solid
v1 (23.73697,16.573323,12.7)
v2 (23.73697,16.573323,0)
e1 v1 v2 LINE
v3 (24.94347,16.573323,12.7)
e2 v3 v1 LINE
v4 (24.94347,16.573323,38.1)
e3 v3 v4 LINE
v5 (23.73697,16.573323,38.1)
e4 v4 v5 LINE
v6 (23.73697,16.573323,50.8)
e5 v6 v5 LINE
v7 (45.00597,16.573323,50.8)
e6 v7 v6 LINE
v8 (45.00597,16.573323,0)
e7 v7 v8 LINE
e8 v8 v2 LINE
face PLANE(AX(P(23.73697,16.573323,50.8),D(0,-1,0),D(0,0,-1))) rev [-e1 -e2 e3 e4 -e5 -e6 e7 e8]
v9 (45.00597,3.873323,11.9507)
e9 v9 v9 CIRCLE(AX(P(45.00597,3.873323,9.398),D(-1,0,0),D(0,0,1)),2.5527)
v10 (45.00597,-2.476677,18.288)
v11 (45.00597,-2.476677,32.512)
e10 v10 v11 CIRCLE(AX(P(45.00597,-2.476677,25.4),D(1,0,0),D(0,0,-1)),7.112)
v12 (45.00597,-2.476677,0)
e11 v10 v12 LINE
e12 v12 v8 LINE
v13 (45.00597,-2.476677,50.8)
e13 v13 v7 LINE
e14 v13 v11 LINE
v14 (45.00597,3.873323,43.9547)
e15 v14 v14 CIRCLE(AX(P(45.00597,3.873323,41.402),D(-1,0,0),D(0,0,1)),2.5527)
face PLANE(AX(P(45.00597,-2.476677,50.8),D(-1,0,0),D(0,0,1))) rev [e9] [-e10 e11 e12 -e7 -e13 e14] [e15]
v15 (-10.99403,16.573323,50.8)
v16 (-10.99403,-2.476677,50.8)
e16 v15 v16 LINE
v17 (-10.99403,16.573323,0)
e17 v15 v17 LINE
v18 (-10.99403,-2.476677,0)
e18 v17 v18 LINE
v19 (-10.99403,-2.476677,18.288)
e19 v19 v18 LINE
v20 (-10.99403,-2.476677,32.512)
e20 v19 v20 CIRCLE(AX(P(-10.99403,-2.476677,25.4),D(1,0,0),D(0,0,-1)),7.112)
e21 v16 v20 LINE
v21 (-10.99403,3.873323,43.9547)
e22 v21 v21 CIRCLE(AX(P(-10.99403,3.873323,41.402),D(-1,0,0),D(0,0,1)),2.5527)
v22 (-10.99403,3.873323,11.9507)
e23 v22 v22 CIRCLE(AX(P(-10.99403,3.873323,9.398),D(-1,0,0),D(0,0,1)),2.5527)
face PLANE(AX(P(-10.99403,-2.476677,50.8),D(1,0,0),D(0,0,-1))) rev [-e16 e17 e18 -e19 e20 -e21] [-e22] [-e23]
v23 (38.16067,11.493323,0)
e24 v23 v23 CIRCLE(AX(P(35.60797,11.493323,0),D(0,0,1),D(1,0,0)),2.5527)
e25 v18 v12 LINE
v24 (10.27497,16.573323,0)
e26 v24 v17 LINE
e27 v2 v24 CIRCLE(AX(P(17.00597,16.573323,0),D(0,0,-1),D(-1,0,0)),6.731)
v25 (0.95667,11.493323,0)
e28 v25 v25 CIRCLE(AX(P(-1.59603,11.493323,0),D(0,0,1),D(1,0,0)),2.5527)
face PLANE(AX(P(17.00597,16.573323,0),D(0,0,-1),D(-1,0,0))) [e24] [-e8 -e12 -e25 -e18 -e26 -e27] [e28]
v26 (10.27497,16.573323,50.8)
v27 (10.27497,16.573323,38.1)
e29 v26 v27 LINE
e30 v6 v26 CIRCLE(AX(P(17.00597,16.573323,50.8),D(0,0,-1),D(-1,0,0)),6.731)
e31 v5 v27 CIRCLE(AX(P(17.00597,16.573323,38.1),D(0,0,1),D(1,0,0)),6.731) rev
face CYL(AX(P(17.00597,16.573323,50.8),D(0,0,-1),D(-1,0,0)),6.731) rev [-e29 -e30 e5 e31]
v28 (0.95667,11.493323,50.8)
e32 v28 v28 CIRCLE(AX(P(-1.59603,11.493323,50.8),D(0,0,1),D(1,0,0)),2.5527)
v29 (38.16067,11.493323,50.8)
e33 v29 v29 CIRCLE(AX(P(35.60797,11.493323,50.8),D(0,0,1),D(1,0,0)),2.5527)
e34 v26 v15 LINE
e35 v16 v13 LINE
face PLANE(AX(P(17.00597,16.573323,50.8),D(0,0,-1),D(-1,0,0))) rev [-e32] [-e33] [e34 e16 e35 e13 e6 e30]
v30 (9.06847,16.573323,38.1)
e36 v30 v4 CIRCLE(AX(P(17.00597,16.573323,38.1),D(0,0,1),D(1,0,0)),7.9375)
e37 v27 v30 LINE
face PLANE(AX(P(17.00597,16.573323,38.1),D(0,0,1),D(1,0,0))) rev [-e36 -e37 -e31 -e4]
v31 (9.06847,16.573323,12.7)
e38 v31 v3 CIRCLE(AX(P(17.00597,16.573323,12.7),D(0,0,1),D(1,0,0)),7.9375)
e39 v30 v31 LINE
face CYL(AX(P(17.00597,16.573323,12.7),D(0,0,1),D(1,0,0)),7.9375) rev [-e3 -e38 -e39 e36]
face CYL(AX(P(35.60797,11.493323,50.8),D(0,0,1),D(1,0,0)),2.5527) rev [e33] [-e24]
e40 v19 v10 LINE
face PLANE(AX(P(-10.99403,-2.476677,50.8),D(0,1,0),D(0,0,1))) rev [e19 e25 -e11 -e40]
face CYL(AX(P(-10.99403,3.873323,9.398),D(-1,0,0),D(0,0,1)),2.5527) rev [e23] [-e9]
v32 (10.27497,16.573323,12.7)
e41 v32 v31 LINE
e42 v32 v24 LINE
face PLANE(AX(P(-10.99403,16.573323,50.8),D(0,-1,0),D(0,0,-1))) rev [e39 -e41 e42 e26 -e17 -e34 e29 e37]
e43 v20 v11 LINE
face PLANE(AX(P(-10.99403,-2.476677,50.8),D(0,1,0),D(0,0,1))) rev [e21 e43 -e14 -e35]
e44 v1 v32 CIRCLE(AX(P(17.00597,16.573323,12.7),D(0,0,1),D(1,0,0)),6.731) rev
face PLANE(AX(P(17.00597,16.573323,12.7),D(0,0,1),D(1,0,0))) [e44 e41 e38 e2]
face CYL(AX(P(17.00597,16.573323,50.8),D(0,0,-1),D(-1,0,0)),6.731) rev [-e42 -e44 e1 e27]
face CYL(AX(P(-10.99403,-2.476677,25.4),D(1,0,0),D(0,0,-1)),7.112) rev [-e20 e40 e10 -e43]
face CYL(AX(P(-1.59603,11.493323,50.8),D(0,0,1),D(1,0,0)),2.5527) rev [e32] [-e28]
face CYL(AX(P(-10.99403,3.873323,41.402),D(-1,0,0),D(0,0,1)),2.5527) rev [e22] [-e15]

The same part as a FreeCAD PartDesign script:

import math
import FreeCAD as App
import Part
import Sketcher

V = App.Vector
Q = App.Units.Quantity

doc = App.newDocument("Part")
params = doc.addObject("Spreadsheet::Sheet", "Params")
for row, (alias, value) in enumerate([
    ("sketch1_radius", "0.265 in"),
    ("sketch1_height", "0.75 in"),
    ("pad1_length", "2 in"),
    ("sketch2_diameter", "0.625 in"),
    ("pocket1_length", "1 in"),
    ("sketch3_diameter", "0.201 in"),
    ("hole_diameter", "0.201 in"),
    ("sketch4_diameter", "0.201 in"),
    ("hole2_diameter", "0.201 in"),
    ("sketch5_radius", "0.28 in"),
], start=1):
    params.set(f"A{row}", alias)
    params.set(f"B{row}", "=" + value)
    params.setAlias(f"B{row}", alias)

body = doc.addObject("PartDesign::Body", "Body")

sketch1 = body.newObject("Sketcher::SketchObject", "Sketch")
sketch1.AttachmentSupport = (doc.getObject("XY_Plane"), [""])
sketch1.MapMode = "FlatFace"
sketch1.addGeometry([
    Part.LineSegment(V(45, 17, 0), V(24, 17, 0)),
    Part.ArcOfCircle(Part.Circle(V(17, 17, 0), V(0, 0, 1), 7), math.radians(180), math.radians(360)),
    Part.LineSegment(V(10, 17, 0), V(-11, 17, 0)),
    Part.LineSegment(V(-11, 17, 0), V(-11, -2, 0)),
    Part.LineSegment(V(-11, -2, 0), V(45, -2, 0)),
    Part.LineSegment(V(45, -2, 0), V(45, 17, 0)),
], False)
sketch1.addConstraint([
    Sketcher.Constraint("Coincident", 0, 2, 1, 2),
    Sketcher.Constraint("Coincident", 1, 1, 2, 1),
    Sketcher.Constraint("Coincident", 2, 2, 3, 1),
    Sketcher.Constraint("Coincident", 3, 2, 4, 1),
    Sketcher.Constraint("Coincident", 4, 2, 5, 1),
    Sketcher.Constraint("Coincident", 5, 2, 0, 1),
    Sketcher.Constraint("Horizontal", 0),
    Sketcher.Constraint("Horizontal", 2),
    Sketcher.Constraint("Vertical", 3),
    Sketcher.Constraint("Horizontal", 4),
    Sketcher.Constraint("Vertical", 5),
    Sketcher.Constraint("Horizontal", 1, 3, 0, 2),
    Sketcher.Constraint("Horizontal", 0, 2, 1, 1),
    Sketcher.Constraint("Equal", 0, 2),
    Sketcher.Constraint("Radius", 1, Q("0.265 in")),
    Sketcher.Constraint("DistanceY", 3, 2, 3, 1, Q("0.75 in")),
    Sketcher.Constraint("DistanceX", 0, 2, 0, 1, Q("21.269 mm")),
    Sketcher.Constraint("DistanceX", -1, 1, 1, 3, Q("17.00597 mm")),
    Sketcher.Constraint("DistanceY", -1, 1, 1, 3, Q("16.573323 mm")),
])
sketch1.setExpression("Constraints[14]", "Params.sketch1_radius")
sketch1.setExpression("Constraints[15]", "Params.sketch1_height")
pad1 = body.newObject("PartDesign::Pad", "Pad")
pad1.Profile = sketch1
pad1.setExpression("Length", "Params.pad1_length")

sketch2 = body.newObject("Sketcher::SketchObject", "Sketch001")
sketch2.AttachmentSupport = (doc.getObject("XY_Plane"), [""])
sketch2.MapMode = "FlatFace"
sketch2.AttachmentOffset = App.Placement(V(0, 0, 1 * 25.4), App.Rotation())
sketch2.addGeometry(Part.Circle(V(17, 17, 0), V(0, 0, 1), 8), False)
sketch2.addConstraint([
    Sketcher.Constraint("Diameter", 0, Q("0.625 in")),
    Sketcher.Constraint("DistanceX", -1, 1, 0, 3, Q("17.00597 mm")),
    Sketcher.Constraint("DistanceY", -1, 1, 0, 3, Q("16.573323 mm")),
])
sketch2.setExpression("Constraints[0]", "Params.sketch2_diameter")
pocket1 = body.newObject("PartDesign::Pocket", "Pocket")
pocket1.Profile = sketch2
pocket1.setExpression("Length", "Params.pocket1_length")
pocket1.Midplane = True

sketch3 = body.newObject("Sketcher::SketchObject", "Sketch002")
sketch3.AttachmentSupport = (doc.getObject("YZ_Plane"), [""])
sketch3.MapMode = "FlatFace"
sketch3.AttachmentOffset = App.Placement(V(0, 0, -10.99403), App.Rotation())
sketch3.addGeometry([
    Part.Circle(V(3.9, 41.4, 0), V(0, 0, 1), 2.6),
    Part.Circle(V(3.9, 9.4, 0), V(0, 0, 1), 2.6),
], False)
sketch3.addConstraint([
    Sketcher.Constraint("Equal", 0, 1),
    Sketcher.Constraint("Vertical", 0, 3, 1, 3),
    Sketcher.Constraint("Diameter", 0, Q("0.201 in")),
    Sketcher.Constraint("DistanceY", -1, 1, 0, 3, Q("1.63 in")),
    Sketcher.Constraint("DistanceY", -1, 1, 1, 3, Q("0.37 in")),
    Sketcher.Constraint("DistanceX", -1, 1, 0, 3, Q("3.873323 mm")),
])
sketch3.setExpression("Constraints[2]", "Params.sketch3_diameter")
doc.recompute()
hole = body.newObject("PartDesign::Hole", "Hole")
hole.Profile = sketch3
hole.ThreadType = "None"
hole.setExpression("Diameter", "Params.hole_diameter")
hole.DepthType = "ThroughAll"
hole.Reversed = True

sketch4 = body.newObject("Sketcher::SketchObject", "Sketch003")
sketch4.AttachmentSupport = (doc.getObject("XY_Plane"), [""])
sketch4.MapMode = "FlatFace"
sketch4.AttachmentOffset = App.Placement(V(0, 0, 2 * 25.4), App.Rotation())
sketch4.addGeometry([
    Part.Circle(V(-1.6, 11.5, 0), V(0, 0, 1), 2.6),
    Part.Circle(V(35.6, 11.5, 0), V(0, 0, 1), 2.6),
], False)
sketch4.addConstraint([
    Sketcher.Constraint("Equal", 0, 1),
    Sketcher.Constraint("Horizontal", 0, 3, 1, 3),
    Sketcher.Constraint("Diameter", 0, Q("0.201 in")),
    Sketcher.Constraint("DistanceX", 0, 3, 1, 3, Q("37.204 mm")),
    Sketcher.Constraint("DistanceX", 0, 3, -1, 1, Q("1.59603 mm")),
    Sketcher.Constraint("DistanceY", -1, 1, 0, 3, Q("11.493323 mm")),
])
sketch4.setExpression("Constraints[2]", "Params.sketch4_diameter")
doc.recompute()
hole2 = body.newObject("PartDesign::Hole", "Hole001")
hole2.Profile = sketch4
hole2.ThreadType = "None"
hole2.setExpression("Diameter", "Params.hole2_diameter")
hole2.DepthType = "ThroughAll"

sketch5 = body.newObject("Sketcher::SketchObject", "Sketch004")
sketch5.AttachmentSupport = (doc.getObject("YZ_Plane"), [""])
sketch5.MapMode = "FlatFace"
sketch5.AttachmentOffset = App.Placement(V(0, 0, 45.00597), App.Rotation())
sketch5.addGeometry([
    Part.LineSegment(V(-2, 33, 0), V(-2, 18, 0)),
    Part.ArcOfCircle(Part.Circle(V(-2, 25, 0), V(0, 0, 1), 7), math.radians(-90), math.radians(90)),
], False)
sketch5.addConstraint([
    Sketcher.Constraint("Coincident", 0, 1, 1, 2),
    Sketcher.Constraint("Coincident", 1, 1, 0, 2),
    Sketcher.Constraint("Vertical", 0),
    Sketcher.Constraint("Vertical", 1, 3, 0, 1),
    Sketcher.Constraint("Radius", 1, Q("0.28 in")),
    Sketcher.Constraint("DistanceY", -1, 1, 1, 3, Q("1 in")),
    Sketcher.Constraint("DistanceX", 1, 3, -1, 1, Q("2.476677 mm")),
])
sketch5.setExpression("Constraints[4]", "Params.sketch5_radius")
pocket2 = body.newObject("PartDesign::Pocket", "Pocket001")
pocket2.Profile = sketch5
pocket2.Type = "ThroughAll"

doc.recompute()
